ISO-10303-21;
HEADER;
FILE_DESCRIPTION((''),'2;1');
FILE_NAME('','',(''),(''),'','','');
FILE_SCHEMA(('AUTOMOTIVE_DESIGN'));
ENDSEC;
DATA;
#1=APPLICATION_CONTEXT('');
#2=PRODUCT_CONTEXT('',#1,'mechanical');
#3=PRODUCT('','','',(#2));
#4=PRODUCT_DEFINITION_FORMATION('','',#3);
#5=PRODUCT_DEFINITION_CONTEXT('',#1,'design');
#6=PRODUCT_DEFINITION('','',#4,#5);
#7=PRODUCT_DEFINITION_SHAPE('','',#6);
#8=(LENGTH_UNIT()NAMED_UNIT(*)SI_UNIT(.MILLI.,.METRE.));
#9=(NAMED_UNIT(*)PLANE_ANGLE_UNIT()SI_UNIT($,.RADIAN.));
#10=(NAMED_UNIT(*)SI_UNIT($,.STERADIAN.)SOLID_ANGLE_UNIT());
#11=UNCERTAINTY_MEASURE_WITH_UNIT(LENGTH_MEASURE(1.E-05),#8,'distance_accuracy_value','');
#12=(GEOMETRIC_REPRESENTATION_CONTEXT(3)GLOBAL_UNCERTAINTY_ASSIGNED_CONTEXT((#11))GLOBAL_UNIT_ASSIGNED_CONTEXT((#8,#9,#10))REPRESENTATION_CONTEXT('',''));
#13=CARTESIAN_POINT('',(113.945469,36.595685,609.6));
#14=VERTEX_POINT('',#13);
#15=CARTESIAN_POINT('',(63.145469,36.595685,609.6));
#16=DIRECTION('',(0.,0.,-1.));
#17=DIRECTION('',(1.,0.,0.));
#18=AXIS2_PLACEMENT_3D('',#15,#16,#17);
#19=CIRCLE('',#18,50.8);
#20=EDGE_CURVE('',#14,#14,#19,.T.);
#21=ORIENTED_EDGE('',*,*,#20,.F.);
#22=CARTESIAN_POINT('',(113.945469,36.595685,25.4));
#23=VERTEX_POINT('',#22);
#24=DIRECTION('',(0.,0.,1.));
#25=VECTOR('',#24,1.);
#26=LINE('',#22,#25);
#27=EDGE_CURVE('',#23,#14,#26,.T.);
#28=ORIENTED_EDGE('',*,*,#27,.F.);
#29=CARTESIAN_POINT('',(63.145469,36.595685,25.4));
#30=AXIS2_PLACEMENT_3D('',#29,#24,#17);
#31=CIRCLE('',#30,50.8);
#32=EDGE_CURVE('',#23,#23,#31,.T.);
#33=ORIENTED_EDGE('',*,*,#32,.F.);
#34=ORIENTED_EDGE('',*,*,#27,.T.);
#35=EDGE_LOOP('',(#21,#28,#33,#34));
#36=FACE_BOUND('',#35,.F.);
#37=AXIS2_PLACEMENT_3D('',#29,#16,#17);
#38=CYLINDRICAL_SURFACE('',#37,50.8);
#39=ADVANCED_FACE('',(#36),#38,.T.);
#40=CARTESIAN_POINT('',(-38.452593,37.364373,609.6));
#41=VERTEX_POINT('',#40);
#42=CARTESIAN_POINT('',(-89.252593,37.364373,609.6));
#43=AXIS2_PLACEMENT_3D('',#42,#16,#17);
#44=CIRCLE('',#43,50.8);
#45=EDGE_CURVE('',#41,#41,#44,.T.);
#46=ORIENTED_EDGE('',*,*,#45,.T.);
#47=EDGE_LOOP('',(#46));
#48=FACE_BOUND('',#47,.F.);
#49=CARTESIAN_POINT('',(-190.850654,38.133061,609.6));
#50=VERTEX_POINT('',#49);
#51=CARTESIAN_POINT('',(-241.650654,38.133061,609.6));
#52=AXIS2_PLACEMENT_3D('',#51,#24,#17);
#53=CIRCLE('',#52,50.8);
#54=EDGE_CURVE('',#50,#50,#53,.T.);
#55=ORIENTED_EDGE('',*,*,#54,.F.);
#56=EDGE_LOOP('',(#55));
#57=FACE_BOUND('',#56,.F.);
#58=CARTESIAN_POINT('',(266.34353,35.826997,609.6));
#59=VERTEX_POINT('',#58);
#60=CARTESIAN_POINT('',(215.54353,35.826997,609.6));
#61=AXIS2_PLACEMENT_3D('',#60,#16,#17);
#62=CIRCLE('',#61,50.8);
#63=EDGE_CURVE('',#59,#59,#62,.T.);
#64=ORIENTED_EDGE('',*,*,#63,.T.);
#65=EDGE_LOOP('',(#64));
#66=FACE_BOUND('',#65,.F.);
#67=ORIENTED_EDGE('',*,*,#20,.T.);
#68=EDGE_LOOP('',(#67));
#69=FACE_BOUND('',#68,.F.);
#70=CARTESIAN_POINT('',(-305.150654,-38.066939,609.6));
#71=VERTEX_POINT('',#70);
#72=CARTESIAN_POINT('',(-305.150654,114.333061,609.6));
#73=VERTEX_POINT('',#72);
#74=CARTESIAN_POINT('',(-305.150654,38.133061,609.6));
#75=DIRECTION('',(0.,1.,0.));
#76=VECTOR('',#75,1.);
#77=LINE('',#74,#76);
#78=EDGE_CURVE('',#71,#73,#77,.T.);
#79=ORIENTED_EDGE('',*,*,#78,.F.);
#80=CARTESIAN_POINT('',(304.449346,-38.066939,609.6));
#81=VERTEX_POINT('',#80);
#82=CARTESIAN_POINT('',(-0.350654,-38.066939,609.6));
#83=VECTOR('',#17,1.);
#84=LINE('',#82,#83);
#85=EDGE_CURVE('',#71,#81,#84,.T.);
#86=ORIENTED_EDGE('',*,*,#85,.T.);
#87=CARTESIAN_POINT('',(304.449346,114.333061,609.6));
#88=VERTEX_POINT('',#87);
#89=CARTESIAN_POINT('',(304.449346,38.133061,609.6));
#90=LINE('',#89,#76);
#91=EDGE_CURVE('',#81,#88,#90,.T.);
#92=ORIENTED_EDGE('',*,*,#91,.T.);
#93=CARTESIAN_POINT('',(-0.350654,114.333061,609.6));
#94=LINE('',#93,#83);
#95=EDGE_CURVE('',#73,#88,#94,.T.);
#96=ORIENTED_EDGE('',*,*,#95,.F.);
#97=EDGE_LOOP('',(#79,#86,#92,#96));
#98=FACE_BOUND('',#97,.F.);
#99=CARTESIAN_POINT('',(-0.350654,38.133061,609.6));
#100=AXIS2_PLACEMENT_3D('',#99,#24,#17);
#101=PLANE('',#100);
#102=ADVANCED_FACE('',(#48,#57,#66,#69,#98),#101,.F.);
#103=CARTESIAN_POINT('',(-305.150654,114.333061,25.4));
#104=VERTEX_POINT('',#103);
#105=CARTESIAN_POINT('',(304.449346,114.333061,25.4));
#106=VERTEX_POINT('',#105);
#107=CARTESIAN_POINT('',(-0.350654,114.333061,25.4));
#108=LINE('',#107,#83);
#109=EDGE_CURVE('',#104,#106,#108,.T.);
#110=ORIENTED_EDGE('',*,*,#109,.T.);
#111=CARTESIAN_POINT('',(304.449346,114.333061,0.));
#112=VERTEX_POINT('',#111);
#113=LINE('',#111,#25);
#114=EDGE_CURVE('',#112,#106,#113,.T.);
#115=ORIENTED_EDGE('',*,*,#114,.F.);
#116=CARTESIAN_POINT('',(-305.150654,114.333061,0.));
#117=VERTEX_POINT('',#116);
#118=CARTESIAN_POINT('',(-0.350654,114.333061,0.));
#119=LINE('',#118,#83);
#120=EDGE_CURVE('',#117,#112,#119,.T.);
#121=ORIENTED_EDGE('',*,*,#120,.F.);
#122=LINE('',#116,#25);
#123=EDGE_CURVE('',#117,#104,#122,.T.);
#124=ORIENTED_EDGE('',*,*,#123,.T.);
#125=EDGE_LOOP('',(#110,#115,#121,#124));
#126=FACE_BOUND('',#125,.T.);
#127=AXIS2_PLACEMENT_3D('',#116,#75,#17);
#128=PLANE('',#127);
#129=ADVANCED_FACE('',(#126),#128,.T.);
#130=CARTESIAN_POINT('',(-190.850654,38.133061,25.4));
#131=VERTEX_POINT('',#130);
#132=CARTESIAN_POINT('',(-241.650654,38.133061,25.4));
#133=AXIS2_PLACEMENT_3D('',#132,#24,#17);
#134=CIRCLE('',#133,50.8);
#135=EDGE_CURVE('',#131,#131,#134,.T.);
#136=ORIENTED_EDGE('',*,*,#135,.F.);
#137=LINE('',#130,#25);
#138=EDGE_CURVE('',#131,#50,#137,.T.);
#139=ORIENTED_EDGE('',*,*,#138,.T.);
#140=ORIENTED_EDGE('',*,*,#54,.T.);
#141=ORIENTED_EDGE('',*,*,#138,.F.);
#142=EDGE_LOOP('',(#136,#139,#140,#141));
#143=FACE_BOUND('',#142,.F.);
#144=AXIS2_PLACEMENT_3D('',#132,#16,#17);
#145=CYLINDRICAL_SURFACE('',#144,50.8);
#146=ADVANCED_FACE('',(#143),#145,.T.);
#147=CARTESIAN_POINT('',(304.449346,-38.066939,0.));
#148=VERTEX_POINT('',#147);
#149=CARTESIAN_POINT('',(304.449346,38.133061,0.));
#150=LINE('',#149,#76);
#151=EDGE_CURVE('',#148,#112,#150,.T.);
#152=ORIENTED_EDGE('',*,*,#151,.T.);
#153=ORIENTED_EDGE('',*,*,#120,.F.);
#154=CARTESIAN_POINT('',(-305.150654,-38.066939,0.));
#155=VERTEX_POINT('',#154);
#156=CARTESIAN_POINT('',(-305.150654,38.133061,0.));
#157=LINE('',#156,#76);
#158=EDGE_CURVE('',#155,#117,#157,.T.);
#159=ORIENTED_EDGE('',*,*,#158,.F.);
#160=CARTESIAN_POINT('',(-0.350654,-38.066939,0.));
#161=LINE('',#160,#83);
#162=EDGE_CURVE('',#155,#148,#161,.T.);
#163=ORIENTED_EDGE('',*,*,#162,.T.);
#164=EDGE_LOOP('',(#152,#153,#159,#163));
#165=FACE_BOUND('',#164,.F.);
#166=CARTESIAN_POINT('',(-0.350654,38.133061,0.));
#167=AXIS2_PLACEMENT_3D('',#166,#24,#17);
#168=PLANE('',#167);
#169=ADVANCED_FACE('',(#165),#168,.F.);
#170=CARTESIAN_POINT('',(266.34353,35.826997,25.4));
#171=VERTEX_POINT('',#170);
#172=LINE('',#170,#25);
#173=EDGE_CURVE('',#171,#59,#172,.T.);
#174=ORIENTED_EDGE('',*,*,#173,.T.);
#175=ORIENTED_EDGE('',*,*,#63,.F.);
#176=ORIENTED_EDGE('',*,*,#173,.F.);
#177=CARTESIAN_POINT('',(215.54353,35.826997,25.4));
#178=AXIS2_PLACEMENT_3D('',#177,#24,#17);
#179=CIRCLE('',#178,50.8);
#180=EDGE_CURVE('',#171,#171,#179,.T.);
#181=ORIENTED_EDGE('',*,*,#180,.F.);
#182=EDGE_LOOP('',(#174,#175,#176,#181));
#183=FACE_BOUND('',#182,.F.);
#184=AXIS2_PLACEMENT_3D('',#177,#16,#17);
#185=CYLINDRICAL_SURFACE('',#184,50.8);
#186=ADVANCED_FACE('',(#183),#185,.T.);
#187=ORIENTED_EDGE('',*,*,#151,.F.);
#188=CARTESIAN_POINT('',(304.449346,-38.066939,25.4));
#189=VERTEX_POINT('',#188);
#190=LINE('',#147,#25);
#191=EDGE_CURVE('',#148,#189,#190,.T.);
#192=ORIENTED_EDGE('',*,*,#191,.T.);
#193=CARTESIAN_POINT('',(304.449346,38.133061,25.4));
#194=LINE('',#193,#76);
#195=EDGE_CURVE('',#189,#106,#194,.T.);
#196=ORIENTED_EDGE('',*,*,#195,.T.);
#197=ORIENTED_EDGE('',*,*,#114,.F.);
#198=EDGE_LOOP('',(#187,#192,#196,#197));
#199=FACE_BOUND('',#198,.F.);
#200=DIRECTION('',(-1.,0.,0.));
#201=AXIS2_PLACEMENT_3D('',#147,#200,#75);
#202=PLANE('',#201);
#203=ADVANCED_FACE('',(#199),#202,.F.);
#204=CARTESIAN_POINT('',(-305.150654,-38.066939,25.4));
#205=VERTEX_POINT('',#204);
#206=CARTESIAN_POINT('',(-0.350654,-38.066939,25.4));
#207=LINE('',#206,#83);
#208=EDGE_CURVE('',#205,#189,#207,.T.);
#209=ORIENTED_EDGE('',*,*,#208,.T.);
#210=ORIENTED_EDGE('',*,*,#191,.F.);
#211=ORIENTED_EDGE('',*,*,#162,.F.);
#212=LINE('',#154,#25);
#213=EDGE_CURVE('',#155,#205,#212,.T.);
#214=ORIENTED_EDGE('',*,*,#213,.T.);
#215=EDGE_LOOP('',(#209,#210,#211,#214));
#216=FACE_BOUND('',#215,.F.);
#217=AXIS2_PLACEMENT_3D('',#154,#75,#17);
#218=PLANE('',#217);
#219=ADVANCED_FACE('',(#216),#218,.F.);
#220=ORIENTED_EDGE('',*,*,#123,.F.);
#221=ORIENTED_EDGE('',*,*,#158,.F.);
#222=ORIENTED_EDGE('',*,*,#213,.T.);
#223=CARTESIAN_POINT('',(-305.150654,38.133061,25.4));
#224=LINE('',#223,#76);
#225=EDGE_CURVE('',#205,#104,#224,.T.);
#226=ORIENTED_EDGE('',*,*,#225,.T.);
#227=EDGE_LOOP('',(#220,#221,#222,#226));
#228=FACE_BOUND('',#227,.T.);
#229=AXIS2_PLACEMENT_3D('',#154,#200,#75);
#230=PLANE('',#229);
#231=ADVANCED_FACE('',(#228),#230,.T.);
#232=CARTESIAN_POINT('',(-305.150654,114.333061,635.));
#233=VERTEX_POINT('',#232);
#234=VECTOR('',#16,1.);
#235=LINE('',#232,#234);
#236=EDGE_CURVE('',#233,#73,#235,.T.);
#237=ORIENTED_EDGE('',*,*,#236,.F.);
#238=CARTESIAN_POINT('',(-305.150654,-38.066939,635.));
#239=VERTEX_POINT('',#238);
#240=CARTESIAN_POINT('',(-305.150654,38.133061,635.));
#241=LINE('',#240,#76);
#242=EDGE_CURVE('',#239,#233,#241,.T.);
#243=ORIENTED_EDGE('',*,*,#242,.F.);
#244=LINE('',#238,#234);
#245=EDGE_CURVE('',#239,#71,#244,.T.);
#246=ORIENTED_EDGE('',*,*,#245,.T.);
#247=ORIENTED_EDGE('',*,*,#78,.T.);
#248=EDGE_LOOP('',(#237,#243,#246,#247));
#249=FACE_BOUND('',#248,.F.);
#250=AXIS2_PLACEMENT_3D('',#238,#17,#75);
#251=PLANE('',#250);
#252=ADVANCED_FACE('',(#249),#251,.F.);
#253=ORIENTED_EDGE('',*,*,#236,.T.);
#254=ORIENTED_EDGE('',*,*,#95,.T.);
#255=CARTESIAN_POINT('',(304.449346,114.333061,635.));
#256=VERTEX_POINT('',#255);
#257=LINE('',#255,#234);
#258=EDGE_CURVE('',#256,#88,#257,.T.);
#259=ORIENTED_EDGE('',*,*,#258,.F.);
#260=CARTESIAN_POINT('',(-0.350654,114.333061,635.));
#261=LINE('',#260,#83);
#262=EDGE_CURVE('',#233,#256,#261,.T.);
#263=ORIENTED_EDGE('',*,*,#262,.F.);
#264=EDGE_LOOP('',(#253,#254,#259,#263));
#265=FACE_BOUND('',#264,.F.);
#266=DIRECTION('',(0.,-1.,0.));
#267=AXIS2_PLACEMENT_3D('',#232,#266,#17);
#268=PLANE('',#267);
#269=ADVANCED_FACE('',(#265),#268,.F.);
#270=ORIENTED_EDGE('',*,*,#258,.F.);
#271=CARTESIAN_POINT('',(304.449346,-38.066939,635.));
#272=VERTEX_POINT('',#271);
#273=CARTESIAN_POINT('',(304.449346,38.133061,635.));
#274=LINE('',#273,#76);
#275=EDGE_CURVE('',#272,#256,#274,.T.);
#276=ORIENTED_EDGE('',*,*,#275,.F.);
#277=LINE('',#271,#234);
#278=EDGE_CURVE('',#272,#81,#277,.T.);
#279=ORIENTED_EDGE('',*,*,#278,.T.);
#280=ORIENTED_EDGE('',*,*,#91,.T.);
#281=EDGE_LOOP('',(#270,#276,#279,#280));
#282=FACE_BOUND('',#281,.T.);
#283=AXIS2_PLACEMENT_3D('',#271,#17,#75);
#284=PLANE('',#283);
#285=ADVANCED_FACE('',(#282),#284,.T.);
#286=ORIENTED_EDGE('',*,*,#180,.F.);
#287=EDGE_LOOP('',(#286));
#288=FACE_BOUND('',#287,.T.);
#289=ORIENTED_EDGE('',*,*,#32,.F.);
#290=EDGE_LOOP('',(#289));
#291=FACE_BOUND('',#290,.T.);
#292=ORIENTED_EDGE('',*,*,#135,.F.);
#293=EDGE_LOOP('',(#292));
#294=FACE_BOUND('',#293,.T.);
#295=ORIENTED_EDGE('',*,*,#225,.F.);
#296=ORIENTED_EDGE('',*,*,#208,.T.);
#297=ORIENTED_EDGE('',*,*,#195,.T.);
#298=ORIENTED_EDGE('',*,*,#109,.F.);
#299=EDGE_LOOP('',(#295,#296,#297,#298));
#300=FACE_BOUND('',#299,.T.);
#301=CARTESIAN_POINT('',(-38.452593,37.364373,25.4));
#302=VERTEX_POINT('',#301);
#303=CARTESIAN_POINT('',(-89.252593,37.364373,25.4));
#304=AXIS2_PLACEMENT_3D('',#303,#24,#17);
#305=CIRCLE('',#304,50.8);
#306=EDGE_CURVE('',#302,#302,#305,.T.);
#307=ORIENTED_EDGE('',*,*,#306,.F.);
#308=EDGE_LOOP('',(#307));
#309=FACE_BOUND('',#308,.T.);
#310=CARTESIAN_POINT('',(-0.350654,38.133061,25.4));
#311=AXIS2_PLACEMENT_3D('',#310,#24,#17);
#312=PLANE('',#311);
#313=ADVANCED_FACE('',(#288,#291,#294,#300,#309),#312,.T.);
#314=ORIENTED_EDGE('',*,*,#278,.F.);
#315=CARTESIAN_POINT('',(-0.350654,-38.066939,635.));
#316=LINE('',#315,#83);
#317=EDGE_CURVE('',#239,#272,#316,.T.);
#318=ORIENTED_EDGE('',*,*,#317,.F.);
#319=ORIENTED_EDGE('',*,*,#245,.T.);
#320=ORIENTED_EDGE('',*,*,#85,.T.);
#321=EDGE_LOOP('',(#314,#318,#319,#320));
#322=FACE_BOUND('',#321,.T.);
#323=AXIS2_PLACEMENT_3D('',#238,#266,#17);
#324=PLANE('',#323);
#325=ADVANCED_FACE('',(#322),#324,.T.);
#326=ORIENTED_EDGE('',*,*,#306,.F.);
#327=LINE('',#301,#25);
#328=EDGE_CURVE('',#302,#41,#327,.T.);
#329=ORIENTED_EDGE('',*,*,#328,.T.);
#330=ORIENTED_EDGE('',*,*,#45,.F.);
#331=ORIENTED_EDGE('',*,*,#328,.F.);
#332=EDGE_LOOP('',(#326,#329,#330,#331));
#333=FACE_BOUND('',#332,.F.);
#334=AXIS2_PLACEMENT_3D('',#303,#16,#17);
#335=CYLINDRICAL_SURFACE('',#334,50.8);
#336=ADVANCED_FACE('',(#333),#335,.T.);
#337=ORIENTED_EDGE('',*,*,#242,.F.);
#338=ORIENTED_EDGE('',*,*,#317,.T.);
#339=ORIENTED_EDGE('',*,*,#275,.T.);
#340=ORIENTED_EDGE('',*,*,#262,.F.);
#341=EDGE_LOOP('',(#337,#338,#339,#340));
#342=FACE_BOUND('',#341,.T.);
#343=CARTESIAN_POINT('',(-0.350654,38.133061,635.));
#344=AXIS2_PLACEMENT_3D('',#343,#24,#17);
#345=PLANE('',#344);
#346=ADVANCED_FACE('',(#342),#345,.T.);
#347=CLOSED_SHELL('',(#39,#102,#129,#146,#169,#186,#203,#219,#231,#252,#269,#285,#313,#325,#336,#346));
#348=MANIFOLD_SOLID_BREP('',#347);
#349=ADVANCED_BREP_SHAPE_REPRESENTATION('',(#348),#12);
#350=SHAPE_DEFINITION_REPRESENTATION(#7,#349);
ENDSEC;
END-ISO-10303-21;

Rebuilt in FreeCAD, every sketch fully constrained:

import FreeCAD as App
import Part
import Sketcher
from FreeCAD import Vector
Q = App.Units.Quantity

doc = App.newDocument("Part")
body = doc.addObject("PartDesign::Body", "Body")

sketch1 = doc.addObject("Sketcher::SketchObject", "Sketch")
body.addObject(sketch1)
sketch1.AttachmentSupport = (doc.XY_Plane, [""])
sketch1.MapMode = "FlatFace"
sketch1.addGeometry(Part.LineSegment(Vector(-305.150654, 114.333061, 0), Vector(-305.150654, -38.066939, 0)), False)
sketch1.addGeometry(Part.LineSegment(Vector(-305.150654, -38.066939, 0), Vector(304.449346, -38.066939, 0)), False)
sketch1.addGeometry(Part.LineSegment(Vector(304.449346, -38.066939, 0), Vector(304.449346, 114.333061, 0)), False)
sketch1.addGeometry(Part.LineSegment(Vector(304.449346, 114.333061, 0), Vector(-305.150654, 114.333061, 0)), False)
sketch1.addConstraint(Sketcher.Constraint("Coincident", 0, 2, 1, 1))
sketch1.addConstraint(Sketcher.Constraint("Coincident", 1, 2, 2, 1))
sketch1.addConstraint(Sketcher.Constraint("Coincident", 2, 2, 3, 1))
sketch1.addConstraint(Sketcher.Constraint("Coincident", 3, 2, 0, 1))
sketch1.addConstraint(Sketcher.Constraint("Vertical", 0))
sketch1.addConstraint(Sketcher.Constraint("Horizontal", 1))
sketch1.addConstraint(Sketcher.Constraint("Vertical", 2))
sketch1.addConstraint(Sketcher.Constraint("Horizontal", 3))
sketch1.addConstraint(Sketcher.Constraint("DistanceX", 1, 1, 1, 2, Q("24 in")))
sketch1.addConstraint(Sketcher.Constraint("DistanceY", 0, 2, 0, 1, Q("6 in")))
sketch1.addConstraint(Sketcher.Constraint("DistanceY", 0, 2, -1, 1, 38.066939))
sketch1.addConstraint(Sketcher.Constraint("DistanceX", 0, 2, -1, 1, 305.150654))
pad1 = doc.addObject("PartDesign::Pad", "Pad")
body.addObject(pad1)
pad1.Profile = sketch1
pad1.Length = Q("1 in")

sketch2 = doc.addObject("Sketcher::SketchObject", "Sketch001")
body.addObject(sketch2)
sketch2.AttachmentSupport = (doc.XY_Plane, [""])
sketch2.MapMode = "FlatFace"
sketch2.AttachmentOffset = App.Placement(Vector(0, 0, 1 * 25.4), App.Rotation())
sketch2.addGeometry(Part.Circle(Vector(215.54353, 35.826997, 0), Vector(0, 0, 1), 50.8), False)
sketch2.addGeometry(Part.Circle(Vector(63.145469, 36.595685, 0), Vector(0, 0, 1), 50.8), False)
sketch2.addGeometry(Part.Circle(Vector(-89.252593, 37.364373, 0), Vector(0, 0, 1), 50.8), False)
sketch2.addGeometry(Part.Circle(Vector(-241.650654, 38.133061, 0), Vector(0, 0, 1), 50.8), False)
sketch2.addConstraint(Sketcher.Constraint("Equal", 0, 1))
sketch2.addConstraint(Sketcher.Constraint("Equal", 1, 2))
sketch2.addConstraint(Sketcher.Constraint("Equal", 2, 3))
sketch2.addConstraint(Sketcher.Constraint("Diameter", 0, Q("4 in")))
sketch2.addConstraint(Sketcher.Constraint("DistanceX", -1, 1, 0, 3, 215.54353))
sketch2.addConstraint(Sketcher.Constraint("DistanceX", -1, 1, 1, 3, 63.145469))
sketch2.addConstraint(Sketcher.Constraint("DistanceY", -1, 1, 3, 3, 38.133061))
sketch2.addConstraint(Sketcher.Constraint("DistanceY", 0, 3, 1, 3, 0.768688))
sketch2.addConstraint(Sketcher.Constraint("DistanceX", 3, 3, 2, 3, 152.398061))
sketch2.addConstraint(Sketcher.Constraint("DistanceY", -1, 1, 0, 3, 35.826997))
sketch2.addConstraint(Sketcher.Constraint("DistanceX", 2, 3, -1, 1, 89.252593))
sketch2.addConstraint(Sketcher.Constraint("DistanceY", -1, 1, 2, 3, 37.364373))
pad2 = doc.addObject("PartDesign::Pad", "Pad001")
body.addObject(pad2)
pad2.Profile = sketch2
pad2.Length = Q("24 in")

sketch3 = doc.addObject("Sketcher::SketchObject", "Sketch002")
body.addObject(sketch3)
sketch3.AttachmentSupport = (doc.XY_Plane, [""])
sketch3.MapMode = "FlatFace"
sketch3.AttachmentOffset = App.Placement(Vector(0, 0, 25 * 25.4), App.Rotation())
sketch3.addGeometry(Part.LineSegment(Vector(-305.150654, 114.333061, 0), Vector(-305.150654, -38.066939, 0)), False)
sketch3.addGeometry(Part.LineSegment(Vector(-305.150654, -38.066939, 0), Vector(304.449346, -38.066939, 0)), False)
sketch3.addGeometry(Part.LineSegment(Vector(304.449346, -38.066939, 0), Vector(304.449346, 114.333061, 0)), False)
sketch3.addGeometry(Part.LineSegment(Vector(304.449346, 114.333061, 0), Vector(-305.150654, 114.333061, 0)), False)
sketch3.addGeometry(Part.Circle(Vector(-241.650654, 38.133061, 0), Vector(0, 0, 1), 50.8), False)
sketch3.addConstraint(Sketcher.Constraint("Coincident", 0, 2, 1, 1))
sketch3.addConstraint(Sketcher.Constraint("Coincident", 1, 2, 2, 1))
sketch3.addConstraint(Sketcher.Constraint("Coincident", 2, 2, 3, 1))
sketch3.addConstraint(Sketcher.Constraint("Coincident", 3, 2, 0, 1))
sketch3.addConstraint(Sketcher.Constraint("Vertical", 0))
sketch3.addConstraint(Sketcher.Constraint("Horizontal", 1))
sketch3.addConstraint(Sketcher.Constraint("Vertical", 2))
sketch3.addConstraint(Sketcher.Constraint("Horizontal", 3))
sketch3.addConstraint(Sketcher.Constraint("Diameter", 4, Q("4 in")))
sketch3.addConstraint(Sketcher.Constraint("DistanceX", 1, 1, 1, 2, Q("24 in")))
sketch3.addConstraint(Sketcher.Constraint("DistanceY", 0, 2, 0, 1, Q("6 in")))
sketch3.addConstraint(Sketcher.Constraint("DistanceY", 0, 2, 4, 3, Q("3 in")))
sketch3.addConstraint(Sketcher.Constraint("DistanceX", 0, 2, 4, 3, Q("2.5 in")))
sketch3.addConstraint(Sketcher.Constraint("DistanceY", -1, 1, 4, 3, 38.133061))
sketch3.addConstraint(Sketcher.Constraint("DistanceX", 4, 3, -1, 1, 241.650654))
pad3 = doc.addObject("PartDesign::Pad", "Pad002")
body.addObject(pad3)
pad3.Profile = sketch3
pad3.Length = Q("1 in")
pad3.Reversed = True

doc.recompute()
